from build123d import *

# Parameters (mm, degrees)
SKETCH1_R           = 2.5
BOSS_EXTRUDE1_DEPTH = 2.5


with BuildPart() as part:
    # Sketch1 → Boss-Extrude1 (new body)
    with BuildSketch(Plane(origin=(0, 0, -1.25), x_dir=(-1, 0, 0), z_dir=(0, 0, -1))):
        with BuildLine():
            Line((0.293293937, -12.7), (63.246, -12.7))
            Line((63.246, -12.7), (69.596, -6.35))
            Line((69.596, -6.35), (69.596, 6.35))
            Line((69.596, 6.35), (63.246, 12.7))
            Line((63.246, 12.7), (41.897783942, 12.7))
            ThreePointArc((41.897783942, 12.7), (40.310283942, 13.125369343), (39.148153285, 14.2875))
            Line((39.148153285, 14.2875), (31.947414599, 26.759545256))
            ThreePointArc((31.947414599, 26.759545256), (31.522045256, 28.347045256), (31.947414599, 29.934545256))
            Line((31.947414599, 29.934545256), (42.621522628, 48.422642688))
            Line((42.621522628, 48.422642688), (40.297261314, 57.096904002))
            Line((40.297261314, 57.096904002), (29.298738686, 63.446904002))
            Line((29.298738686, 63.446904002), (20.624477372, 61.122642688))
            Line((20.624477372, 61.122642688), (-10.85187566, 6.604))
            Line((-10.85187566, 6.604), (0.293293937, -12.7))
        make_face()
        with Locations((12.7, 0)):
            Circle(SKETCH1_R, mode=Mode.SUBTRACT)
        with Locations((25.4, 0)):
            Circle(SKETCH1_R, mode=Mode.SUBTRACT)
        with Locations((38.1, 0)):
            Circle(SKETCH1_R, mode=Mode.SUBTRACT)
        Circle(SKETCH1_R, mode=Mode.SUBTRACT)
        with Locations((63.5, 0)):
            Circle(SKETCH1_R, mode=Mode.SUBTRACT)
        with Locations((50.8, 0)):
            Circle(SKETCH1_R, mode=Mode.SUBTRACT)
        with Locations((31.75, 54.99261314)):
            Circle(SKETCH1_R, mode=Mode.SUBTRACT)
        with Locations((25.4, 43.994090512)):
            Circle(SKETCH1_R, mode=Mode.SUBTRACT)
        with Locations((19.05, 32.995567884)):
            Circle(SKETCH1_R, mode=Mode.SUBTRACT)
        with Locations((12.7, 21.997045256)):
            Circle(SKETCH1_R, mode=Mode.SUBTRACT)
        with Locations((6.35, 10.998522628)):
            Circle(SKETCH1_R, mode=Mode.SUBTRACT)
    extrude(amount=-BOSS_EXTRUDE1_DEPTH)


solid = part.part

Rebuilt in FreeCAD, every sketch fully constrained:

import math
import FreeCAD as App
import Part
import Sketcher
Q = App.Units.Quantity

doc = App.newDocument("Part")
params = doc.addObject("Spreadsheet::Sheet", "Params")
for row, (alias, value) in enumerate([
    ("sketch1_diameter", "5 mm"),
    ("sketch1_height", "12.7 mm"),
    ("sketch1_length", "12.7 mm"),
    ("pad1_length", "2.5 mm"),
], start=1):
    params.set(f"A{row}", alias)
    params.set(f"B{row}", "=" + value)
    params.setAlias(f"B{row}", alias)

body = doc.addObject("PartDesign::Body", "Body")

sketch1 = body.newObject("Sketcher::SketchObject", "Sketch")
sketch1.AttachmentSupport = (doc.getObject("XY_Plane"), [""])
sketch1.MapMode = "FlatFace"
sketch1.AttachmentOffset = App.Placement(App.Vector(0, 0, -1.25), App.Rotation())
sketch1.addGeometry([
    Part.LineSegment(App.Vector(-0.293294, -12.7, 0), App.Vector(-63.246, -12.7, 0)),
    Part.LineSegment(App.Vector(-63.246, -12.7, 0), App.Vector(-69.596, -6.35, 0)),
    Part.LineSegment(App.Vector(-69.596, -6.35, 0), App.Vector(-69.596, 6.35, 0)),
    Part.LineSegment(App.Vector(-69.596, 6.35, 0), App.Vector(-63.246, 12.7, 0)),
    Part.LineSegment(App.Vector(-63.246, 12.7, 0), App.Vector(-41.897784, 12.7, 0)),
    Part.ArcOfCircle(Part.Circle(App.Vector(-41.897784, 15.875, 0), App.Vector(0, 0, 1), 3.175), math.radians(-90), math.radians(-30)),
    Part.LineSegment(App.Vector(-39.148153, 14.2875, 0), App.Vector(-31.947415, 26.759545, 0)),
    Part.ArcOfCircle(Part.Circle(App.Vector(-34.697045, 28.347045, 0), App.Vector(0, 0, 1), 3.175), math.radians(-30), math.radians(30)),
    Part.LineSegment(App.Vector(-31.947415, 29.934545, 0), App.Vector(-42.621523, 48.422643, 0)),
    Part.LineSegment(App.Vector(-42.621523, 48.422643, 0), App.Vector(-40.297261, 57.096904, 0)),
    Part.LineSegment(App.Vector(-40.297261, 57.096904, 0), App.Vector(-29.298739, 63.446904, 0)),
    Part.LineSegment(App.Vector(-29.298739, 63.446904, 0), App.Vector(-20.624477, 61.122643, 0)),
    Part.LineSegment(App.Vector(-20.624477, 61.122643, 0), App.Vector(10.851876, 6.604, 0)),
    Part.LineSegment(App.Vector(10.851876, 6.604, 0), App.Vector(-0.293294, -12.7, 0)),
    Part.Circle(App.Vector(0, 0, 0), App.Vector(0, 0, 1), 2.5),
    Part.Circle(App.Vector(-12.7, 0, 0), App.Vector(0, 0, 1), 2.5),
    Part.Circle(App.Vector(-6.35, 10.998523, 0), App.Vector(0, 0, 1), 2.5),
    Part.Circle(App.Vector(-25.4, 0, 0), App.Vector(0, 0, 1), 2.5),
    Part.Circle(App.Vector(-12.7, 21.997045, 0), App.Vector(0, 0, 1), 2.5),
    Part.Circle(App.Vector(-38.1, 0, 0), App.Vector(0, 0, 1), 2.5),
    Part.Circle(App.Vector(-50.8, 0, 0), App.Vector(0, 0, 1), 2.5),
    Part.Circle(App.Vector(-63.5, 0, 0), App.Vector(0, 0, 1), 2.5),
    Part.Circle(App.Vector(-19.05, 32.995568, 0), App.Vector(0, 0, 1), 2.5),
    Part.Circle(App.Vector(-25.4, 43.994091, 0), App.Vector(0, 0, 1), 2.5),
    Part.Circle(App.Vector(-31.75, 54.992613, 0), App.Vector(0, 0, 1), 2.5),
], False)
sketch1.addConstraint([
    Sketcher.Constraint("Coincident", 0, 2, 1, 1),
    Sketcher.Constraint("Coincident", 1, 2, 2, 1),
    Sketcher.Constraint("Coincident", 2, 2, 3, 1),
    Sketcher.Constraint("Coincident", 3, 2, 4, 1),
    Sketcher.Constraint("Tangent", 4, 2, 5, 1),
    Sketcher.Constraint("Tangent", 5, 2, 6, 1),
    Sketcher.Constraint("Tangent", 6, 2, 7, 1),
    Sketcher.Constraint("Tangent", 7, 2, 8, 1),
    Sketcher.Constraint("Coincident", 8, 2, 9, 1),
    Sketcher.Constraint("Coincident", 9, 2, 10, 1),
    Sketcher.Constraint("Coincident", 10, 2, 11, 1),
    Sketcher.Constraint("Coincident", 11, 2, 12, 1),
    Sketcher.Constraint("Coincident", 12, 2, 13, 1),
    Sketcher.Constraint("Coincident", 13, 2, 0, 1),
    Sketcher.Constraint("Horizontal", 0),
    Sketcher.Constraint("Vertical", 2),
    Sketcher.Constraint("Horizontal", 4),
    Sketcher.Constraint("Coincident", 14, 3, -1, 1),
    Sketcher.Constraint("Equal", 5, 7),
    Sketcher.Constraint("Equal", 14, 15),
    Sketcher.Constraint("Equal", 15, 16),
    Sketcher.Constraint("Equal", 16, 17),
    Sketcher.Constraint("Equal", 17, 18),
    Sketcher.Constraint("Equal", 18, 19),
    Sketcher.Constraint("Equal", 19, 20),
    Sketcher.Constraint("Equal", 20, 21),
    Sketcher.Constraint("Equal", 21, 22),
    Sketcher.Constraint("Equal", 22, 23),
    Sketcher.Constraint("Equal", 23, 24),
    Sketcher.Constraint("Symmetric", 0, 2, 3, 2, -1),
    Sketcher.Constraint("PointOnObject", 15, 3, -1),
    Sketcher.Constraint("PointOnObject", 17, 3, -1),
    Sketcher.Constraint("PointOnObject", 19, 3, -1),
    Sketcher.Constraint("PointOnObject", 20, 3, -1),
    Sketcher.Constraint("PointOnObject", 21, 3, -1),
    Sketcher.Constraint("Perpendicular", 1, 3),
    Sketcher.Constraint("Perpendicular", 8, 10),
    Sketcher.Constraint("Perpendicular", 9, 11),
    Sketcher.Constraint("Perpendicular", 10, 12),
    Sketcher.Constraint("Parallel", 6, 13),
    Sketcher.Constraint("Vertical", 15, 3, 18, 3),
    Sketcher.Constraint("Vertical", 17, 3, 23, 3),
    Sketcher.Constraint("Vertical", 6, 2, 7, 2),
    Sketcher.Constraint("Equal", 1, 3),
    Sketcher.Constraint("Equal", 3, 9),
    Sketcher.Constraint("Equal", 9, 11),
    Sketcher.Constraint("Diameter", 14, Q("5 mm")),
    Sketcher.Constraint("Angle", 6, Q("60 deg")),
    Sketcher.Constraint("Angle", 9, Q("75 deg")),
    Sketcher.Constraint("DistanceY", 2, 1, 2, 2, Q("12.7 mm")),
    Sketcher.Constraint("Radius", 5, Q("3.175 mm")),
    Sketcher.Constraint("Distance", 10, Q("12.7 mm")),
    Sketcher.Constraint("DistanceX", 15, 3, -1, 1, Q("12.7 mm")),
    Sketcher.Constraint("DistanceX", 17, 3, -1, 1, Q("25.4 mm")),
    Sketcher.Constraint("DistanceX", 19, 3, -1, 1, Q("38.1 mm")),
    Sketcher.Constraint("DistanceX", 20, 3, -1, 1, Q("50.8 mm")),
    Sketcher.Constraint("DistanceX", 21, 3, -1, 1, Q("63.5 mm")),
    Sketcher.Constraint("DistanceY", 0, 2, -1, 1, Q("12.7 mm")),
    Sketcher.Constraint("DistanceX", 22, 3, 16, 3, Q("12.7 mm")),
    Sketcher.Constraint("DistanceX", 24, 3, 22, 3, Q("12.7 mm")),
    Sketcher.Constraint("DistanceX", 16, 3, -1, 1, Q("6.35 mm")),
    Sketcher.Constraint("DistanceY", 18, 3, 7, 3, Q("6.35 mm")),
    Sketcher.Constraint("DistanceX", 0, 2, -1, 1, Q("63.246 mm")),
    Sketcher.Constraint("DistanceY", -1, 1, 12, 2, Q("6.604 mm")),
    Sketcher.Constraint("DistanceX", 0, 2, 0, 1, Q("62.952706 mm")),
    Sketcher.Constraint("DistanceX", 4, 1, 4, 2, Q("21.348216 mm")),
    Sketcher.Constraint("DistanceY", -1, 1, 23, 3, Q("43.994091 mm")),
    Sketcher.Constraint("DistanceX", 9, 2, -1, 1, Q("40.297261 mm")),
    Sketcher.Constraint("DistanceY", 8, 2, 24, 3, Q("6.56997 mm")),
    Sketcher.Constraint("DistanceY", -1, 1, 16, 3, Q("10.998523 mm")),
    Sketcher.Constraint("DistanceY", -1, 1, 22, 3, Q("32.995568 mm")),
])
sketch1.setExpression("Constraints[46]", "Params.sketch1_diameter")
sketch1.setExpression("Constraints[49]", "Params.sketch1_height")
sketch1.setExpression("Constraints[51]", "Params.sketch1_length")
pad1 = body.newObject("PartDesign::Pad", "Pad")
pad1.Profile = sketch1
pad1.setExpression("Length", "Params.pad1_length")

doc.recompute()
